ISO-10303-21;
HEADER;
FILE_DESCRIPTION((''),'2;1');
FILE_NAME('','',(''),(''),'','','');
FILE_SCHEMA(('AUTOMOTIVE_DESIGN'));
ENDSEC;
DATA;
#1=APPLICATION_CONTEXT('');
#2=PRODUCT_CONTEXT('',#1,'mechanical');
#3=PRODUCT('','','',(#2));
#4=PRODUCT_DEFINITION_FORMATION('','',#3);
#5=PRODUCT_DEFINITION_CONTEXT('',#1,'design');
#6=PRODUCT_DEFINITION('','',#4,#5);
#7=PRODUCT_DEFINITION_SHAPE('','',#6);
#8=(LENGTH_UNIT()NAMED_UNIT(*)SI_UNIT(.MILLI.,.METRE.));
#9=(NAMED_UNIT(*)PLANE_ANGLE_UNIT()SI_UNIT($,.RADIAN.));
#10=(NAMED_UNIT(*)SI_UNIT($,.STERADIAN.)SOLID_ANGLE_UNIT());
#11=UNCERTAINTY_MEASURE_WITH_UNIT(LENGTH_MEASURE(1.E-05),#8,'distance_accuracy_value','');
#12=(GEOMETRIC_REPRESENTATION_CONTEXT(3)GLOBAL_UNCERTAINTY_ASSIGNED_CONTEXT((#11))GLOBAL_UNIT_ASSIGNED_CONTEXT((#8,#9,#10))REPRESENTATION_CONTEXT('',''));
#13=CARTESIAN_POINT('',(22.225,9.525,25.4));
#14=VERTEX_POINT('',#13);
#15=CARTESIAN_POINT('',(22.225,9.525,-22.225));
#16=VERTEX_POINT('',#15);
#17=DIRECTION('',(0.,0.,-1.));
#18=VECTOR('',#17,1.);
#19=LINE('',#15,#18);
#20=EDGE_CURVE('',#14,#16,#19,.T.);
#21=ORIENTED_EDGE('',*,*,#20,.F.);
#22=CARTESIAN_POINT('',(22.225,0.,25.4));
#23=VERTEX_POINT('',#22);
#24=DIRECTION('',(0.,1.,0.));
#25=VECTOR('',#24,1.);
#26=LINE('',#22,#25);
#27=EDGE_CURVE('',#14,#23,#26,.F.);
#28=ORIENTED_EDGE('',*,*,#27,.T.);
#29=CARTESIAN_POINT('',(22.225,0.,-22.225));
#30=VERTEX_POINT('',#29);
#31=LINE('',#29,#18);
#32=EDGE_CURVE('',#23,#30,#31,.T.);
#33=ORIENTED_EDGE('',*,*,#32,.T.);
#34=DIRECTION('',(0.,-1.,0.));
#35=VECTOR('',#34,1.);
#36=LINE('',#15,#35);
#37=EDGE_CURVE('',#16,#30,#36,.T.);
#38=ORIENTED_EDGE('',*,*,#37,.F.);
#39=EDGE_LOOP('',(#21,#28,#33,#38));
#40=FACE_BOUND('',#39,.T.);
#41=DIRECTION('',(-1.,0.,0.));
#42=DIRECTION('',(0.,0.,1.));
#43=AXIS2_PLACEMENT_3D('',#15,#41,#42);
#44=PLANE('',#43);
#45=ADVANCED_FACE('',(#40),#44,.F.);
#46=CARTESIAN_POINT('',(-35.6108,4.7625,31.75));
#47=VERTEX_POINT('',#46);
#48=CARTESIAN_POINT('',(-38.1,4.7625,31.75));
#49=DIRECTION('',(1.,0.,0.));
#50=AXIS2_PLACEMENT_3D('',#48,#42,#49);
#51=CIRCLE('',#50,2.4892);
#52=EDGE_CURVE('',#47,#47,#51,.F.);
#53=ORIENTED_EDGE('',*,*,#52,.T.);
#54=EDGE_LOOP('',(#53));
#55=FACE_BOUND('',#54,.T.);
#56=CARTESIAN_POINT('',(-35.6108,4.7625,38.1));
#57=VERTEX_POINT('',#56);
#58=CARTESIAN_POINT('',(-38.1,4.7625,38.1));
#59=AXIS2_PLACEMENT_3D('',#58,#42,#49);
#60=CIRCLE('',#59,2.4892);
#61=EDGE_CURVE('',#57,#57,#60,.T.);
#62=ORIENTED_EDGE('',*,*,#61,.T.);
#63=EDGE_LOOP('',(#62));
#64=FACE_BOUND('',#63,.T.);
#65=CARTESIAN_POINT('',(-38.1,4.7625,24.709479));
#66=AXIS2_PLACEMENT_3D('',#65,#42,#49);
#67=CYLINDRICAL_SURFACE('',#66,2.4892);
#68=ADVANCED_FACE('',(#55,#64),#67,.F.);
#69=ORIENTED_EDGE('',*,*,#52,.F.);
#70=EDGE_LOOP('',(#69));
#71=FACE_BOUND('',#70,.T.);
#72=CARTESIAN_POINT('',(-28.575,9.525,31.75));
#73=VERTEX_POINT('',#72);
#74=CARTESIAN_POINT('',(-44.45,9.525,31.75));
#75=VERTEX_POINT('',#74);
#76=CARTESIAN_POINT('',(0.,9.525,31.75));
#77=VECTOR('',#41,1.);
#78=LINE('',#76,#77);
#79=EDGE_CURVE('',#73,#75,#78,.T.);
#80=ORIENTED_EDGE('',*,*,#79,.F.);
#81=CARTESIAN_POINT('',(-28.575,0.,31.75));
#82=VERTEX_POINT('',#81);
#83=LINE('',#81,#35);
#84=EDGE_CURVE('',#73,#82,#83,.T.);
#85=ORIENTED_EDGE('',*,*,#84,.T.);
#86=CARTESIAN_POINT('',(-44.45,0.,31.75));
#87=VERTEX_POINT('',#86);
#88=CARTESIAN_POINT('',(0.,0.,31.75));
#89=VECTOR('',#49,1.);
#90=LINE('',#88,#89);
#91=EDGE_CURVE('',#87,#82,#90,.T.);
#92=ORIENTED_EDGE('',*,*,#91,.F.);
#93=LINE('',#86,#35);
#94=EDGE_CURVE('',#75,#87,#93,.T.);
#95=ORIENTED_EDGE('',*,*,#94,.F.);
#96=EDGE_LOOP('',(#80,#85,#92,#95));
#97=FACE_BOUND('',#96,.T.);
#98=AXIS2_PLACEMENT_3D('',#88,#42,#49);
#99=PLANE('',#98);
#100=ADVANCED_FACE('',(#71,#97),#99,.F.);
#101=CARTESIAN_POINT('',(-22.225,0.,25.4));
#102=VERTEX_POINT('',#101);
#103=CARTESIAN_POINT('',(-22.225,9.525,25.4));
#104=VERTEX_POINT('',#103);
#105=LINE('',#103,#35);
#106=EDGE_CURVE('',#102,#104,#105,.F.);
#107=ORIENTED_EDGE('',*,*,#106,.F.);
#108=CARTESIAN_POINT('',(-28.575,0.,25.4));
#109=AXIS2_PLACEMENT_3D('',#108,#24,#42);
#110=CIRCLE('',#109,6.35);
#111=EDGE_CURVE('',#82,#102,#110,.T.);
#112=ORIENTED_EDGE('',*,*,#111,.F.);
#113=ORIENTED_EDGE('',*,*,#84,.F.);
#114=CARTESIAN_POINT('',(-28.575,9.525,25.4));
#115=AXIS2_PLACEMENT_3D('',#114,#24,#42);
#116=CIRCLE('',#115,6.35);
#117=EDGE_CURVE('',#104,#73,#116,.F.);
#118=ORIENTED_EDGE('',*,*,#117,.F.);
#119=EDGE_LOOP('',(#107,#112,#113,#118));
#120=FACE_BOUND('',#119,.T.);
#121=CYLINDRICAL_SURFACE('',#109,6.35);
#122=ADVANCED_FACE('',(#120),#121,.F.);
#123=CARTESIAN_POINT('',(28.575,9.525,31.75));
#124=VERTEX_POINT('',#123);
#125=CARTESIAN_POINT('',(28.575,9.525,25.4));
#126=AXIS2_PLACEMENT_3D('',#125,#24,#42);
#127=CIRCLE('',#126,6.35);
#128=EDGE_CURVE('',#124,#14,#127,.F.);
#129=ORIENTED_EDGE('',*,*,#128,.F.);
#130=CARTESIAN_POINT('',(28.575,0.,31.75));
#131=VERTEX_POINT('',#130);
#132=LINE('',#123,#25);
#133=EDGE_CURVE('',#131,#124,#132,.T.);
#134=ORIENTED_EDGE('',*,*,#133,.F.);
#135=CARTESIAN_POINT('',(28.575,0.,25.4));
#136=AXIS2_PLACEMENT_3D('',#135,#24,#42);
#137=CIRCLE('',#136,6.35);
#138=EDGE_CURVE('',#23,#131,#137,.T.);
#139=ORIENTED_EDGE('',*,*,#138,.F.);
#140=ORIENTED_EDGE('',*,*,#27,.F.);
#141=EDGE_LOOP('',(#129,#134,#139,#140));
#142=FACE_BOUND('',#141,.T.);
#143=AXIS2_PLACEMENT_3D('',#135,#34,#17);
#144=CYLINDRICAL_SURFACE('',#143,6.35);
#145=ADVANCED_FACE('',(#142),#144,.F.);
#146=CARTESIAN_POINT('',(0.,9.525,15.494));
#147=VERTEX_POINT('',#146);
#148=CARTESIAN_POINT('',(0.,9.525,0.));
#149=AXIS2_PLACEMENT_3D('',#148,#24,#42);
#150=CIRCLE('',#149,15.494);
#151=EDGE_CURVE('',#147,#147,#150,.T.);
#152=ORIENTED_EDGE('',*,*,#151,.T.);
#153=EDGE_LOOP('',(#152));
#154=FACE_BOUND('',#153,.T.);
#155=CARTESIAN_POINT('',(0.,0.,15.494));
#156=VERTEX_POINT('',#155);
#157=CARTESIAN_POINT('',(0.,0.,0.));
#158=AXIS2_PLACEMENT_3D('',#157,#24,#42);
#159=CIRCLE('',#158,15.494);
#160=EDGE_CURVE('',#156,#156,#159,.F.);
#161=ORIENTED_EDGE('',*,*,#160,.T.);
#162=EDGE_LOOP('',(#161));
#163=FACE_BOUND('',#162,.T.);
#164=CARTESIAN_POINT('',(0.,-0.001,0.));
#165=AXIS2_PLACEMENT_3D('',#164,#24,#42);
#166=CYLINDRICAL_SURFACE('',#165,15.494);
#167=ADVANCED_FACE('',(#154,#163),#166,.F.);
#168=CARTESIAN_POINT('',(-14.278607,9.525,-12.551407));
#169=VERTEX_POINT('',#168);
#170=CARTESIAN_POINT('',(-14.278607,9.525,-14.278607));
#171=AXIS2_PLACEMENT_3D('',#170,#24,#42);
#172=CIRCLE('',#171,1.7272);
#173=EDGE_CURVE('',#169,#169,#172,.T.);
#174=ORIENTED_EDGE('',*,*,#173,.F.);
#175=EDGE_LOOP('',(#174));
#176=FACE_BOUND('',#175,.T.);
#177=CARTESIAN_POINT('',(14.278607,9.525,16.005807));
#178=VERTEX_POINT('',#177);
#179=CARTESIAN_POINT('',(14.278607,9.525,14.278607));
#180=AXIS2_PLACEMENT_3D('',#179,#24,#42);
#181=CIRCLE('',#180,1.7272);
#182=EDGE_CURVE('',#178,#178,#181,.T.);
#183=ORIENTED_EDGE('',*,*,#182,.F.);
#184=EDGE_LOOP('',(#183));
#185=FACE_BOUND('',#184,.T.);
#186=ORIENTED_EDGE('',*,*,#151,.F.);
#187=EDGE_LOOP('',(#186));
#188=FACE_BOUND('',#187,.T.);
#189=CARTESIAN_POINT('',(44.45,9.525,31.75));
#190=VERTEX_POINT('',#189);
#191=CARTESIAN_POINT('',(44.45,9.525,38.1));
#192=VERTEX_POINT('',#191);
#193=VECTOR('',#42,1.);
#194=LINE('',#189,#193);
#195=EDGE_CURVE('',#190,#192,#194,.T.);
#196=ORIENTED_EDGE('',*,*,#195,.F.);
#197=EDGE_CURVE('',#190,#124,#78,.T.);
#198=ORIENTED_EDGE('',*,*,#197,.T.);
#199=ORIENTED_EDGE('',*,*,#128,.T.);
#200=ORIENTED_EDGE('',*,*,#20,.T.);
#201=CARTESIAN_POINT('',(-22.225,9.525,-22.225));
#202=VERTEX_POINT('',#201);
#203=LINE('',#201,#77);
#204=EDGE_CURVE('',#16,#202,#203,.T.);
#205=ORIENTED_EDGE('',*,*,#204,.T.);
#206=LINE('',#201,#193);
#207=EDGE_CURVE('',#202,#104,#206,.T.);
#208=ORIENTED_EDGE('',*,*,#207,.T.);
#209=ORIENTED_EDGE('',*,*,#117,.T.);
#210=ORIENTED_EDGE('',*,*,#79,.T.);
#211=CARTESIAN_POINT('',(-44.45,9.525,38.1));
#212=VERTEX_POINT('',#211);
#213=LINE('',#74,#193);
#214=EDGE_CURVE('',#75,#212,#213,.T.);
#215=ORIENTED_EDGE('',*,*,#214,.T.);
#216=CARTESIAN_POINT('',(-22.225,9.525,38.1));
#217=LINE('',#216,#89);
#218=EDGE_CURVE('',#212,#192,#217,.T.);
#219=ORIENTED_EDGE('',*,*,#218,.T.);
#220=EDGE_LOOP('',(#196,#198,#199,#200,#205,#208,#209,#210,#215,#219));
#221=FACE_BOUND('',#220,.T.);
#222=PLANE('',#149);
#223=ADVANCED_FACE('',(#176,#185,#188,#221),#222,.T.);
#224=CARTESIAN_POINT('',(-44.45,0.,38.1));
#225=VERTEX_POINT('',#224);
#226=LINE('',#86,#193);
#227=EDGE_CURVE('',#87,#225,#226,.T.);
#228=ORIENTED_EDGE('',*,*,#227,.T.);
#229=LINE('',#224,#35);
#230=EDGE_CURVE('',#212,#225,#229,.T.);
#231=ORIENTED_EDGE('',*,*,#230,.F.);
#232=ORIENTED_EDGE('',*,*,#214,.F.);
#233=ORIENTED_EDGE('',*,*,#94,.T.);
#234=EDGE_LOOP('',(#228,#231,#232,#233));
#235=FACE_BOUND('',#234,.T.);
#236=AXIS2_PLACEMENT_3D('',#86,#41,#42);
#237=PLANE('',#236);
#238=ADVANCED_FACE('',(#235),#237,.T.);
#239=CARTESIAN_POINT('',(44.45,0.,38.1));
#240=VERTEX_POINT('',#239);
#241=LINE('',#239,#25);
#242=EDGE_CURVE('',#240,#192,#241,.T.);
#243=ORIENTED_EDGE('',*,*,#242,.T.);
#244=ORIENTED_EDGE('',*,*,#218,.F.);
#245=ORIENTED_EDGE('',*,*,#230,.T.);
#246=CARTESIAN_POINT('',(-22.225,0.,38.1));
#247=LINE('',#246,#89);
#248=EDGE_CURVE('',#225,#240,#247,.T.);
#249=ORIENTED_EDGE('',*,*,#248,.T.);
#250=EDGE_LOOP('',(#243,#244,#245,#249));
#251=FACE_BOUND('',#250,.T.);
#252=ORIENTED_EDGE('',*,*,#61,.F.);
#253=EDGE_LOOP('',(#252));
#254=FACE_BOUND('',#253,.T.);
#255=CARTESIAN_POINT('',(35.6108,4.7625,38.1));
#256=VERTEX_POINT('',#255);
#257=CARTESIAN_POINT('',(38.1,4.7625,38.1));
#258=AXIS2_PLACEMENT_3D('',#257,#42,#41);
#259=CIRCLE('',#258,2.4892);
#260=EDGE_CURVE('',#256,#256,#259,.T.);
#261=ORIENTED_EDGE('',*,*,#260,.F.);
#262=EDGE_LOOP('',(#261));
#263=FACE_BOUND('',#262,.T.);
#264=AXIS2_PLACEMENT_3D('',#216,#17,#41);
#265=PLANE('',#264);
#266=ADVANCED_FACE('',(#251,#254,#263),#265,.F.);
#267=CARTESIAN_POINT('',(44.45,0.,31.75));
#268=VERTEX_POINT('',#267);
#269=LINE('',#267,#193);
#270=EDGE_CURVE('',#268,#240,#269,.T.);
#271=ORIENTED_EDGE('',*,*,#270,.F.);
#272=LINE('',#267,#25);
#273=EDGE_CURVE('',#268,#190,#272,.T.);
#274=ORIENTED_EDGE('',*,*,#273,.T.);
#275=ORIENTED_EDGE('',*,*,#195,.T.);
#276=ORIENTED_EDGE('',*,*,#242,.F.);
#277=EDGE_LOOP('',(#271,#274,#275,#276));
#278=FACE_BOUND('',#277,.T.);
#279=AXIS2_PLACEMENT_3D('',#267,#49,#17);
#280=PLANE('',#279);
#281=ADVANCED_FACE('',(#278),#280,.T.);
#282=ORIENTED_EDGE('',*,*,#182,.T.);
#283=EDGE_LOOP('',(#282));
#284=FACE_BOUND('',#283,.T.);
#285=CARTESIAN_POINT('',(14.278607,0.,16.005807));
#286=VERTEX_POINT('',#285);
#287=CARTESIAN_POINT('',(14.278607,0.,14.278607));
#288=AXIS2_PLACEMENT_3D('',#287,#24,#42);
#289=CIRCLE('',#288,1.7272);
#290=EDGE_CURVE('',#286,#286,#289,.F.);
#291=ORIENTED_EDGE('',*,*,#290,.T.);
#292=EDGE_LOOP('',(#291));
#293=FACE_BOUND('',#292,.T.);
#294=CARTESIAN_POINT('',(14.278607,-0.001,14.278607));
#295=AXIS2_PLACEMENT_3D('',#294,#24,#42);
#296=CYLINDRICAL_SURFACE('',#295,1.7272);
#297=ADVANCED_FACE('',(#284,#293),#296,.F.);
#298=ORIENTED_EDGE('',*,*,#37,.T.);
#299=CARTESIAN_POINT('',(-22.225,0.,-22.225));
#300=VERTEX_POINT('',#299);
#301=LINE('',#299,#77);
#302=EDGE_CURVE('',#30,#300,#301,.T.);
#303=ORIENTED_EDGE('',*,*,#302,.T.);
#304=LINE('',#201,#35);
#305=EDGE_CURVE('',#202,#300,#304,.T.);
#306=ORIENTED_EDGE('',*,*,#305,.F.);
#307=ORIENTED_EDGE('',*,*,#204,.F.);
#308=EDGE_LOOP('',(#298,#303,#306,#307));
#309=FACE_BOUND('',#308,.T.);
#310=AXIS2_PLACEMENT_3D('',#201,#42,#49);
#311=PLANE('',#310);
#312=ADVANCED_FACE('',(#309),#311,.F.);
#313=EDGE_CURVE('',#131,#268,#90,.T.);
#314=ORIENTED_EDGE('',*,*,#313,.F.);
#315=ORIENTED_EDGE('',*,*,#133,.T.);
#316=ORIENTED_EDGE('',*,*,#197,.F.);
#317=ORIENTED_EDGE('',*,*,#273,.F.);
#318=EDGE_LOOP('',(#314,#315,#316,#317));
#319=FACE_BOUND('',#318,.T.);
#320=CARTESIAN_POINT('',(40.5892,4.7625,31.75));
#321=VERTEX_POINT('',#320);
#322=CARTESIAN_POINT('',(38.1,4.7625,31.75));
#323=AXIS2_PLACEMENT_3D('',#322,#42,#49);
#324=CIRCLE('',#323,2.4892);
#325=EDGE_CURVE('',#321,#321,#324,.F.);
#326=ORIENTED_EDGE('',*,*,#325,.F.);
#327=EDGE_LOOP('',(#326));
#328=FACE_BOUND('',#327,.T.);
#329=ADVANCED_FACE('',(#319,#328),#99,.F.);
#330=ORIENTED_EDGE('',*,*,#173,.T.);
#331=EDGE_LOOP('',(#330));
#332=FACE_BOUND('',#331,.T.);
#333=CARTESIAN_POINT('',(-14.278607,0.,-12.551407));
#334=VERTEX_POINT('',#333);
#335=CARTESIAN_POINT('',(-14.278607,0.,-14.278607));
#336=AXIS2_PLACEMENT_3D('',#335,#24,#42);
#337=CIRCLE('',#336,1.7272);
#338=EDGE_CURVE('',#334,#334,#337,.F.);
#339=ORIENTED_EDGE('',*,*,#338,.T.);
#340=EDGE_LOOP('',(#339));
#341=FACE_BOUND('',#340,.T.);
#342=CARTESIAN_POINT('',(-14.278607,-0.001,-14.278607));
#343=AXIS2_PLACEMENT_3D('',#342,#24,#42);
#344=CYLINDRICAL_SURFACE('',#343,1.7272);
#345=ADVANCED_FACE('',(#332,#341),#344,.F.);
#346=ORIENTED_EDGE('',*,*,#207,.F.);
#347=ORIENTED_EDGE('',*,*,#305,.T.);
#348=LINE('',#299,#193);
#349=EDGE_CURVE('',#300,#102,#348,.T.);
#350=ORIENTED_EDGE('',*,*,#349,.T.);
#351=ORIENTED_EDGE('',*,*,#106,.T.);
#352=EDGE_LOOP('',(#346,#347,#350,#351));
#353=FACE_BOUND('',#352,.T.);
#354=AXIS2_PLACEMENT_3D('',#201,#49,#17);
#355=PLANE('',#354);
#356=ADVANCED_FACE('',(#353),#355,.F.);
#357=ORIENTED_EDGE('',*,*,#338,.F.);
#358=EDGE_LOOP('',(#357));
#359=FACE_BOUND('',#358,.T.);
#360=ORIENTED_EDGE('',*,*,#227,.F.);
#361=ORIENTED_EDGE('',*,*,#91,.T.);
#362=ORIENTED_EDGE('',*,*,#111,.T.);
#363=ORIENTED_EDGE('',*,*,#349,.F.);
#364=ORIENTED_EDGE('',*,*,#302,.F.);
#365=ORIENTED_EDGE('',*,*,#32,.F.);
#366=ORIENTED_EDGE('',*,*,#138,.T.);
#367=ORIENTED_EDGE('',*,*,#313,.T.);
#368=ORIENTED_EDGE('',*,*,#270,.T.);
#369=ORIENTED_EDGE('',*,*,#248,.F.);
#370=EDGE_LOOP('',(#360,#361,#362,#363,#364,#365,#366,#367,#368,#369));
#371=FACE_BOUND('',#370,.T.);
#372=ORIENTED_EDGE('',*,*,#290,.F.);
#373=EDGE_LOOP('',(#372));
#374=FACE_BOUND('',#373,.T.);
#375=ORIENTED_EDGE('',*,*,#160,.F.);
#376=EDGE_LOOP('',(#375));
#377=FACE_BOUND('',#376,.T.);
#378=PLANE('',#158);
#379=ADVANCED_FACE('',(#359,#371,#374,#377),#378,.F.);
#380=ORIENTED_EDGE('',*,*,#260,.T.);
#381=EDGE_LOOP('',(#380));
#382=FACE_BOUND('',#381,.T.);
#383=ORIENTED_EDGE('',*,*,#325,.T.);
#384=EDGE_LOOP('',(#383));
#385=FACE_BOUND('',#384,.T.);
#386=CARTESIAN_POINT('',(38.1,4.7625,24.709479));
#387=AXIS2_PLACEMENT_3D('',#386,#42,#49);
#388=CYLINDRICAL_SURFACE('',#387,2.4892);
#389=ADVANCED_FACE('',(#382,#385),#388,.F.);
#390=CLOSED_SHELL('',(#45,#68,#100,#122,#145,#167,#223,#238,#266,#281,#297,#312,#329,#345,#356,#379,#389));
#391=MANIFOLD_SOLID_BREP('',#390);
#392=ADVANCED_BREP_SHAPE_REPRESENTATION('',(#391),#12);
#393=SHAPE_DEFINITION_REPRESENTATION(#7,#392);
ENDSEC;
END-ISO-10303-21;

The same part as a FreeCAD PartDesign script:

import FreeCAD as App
import Part
import Sketcher

V = App.Vector
Q = App.Units.Quantity


def edges_at(feature, points):
    """Names of the edges that pass closest to the given points."""
    edges = feature.Shape.Edges
    near = lambda p: min(range(len(edges)), key=lambda i: edges[i].distToShape(Part.Vertex(*p))[0])
    return sorted({f"Edge{near(p) + 1}" for p in points})

doc = App.newDocument("Part")
body = doc.addObject("PartDesign::Body", "Body")

sketch1 = body.newObject("Sketcher::SketchObject", "Sketch")
sketch1.AttachmentSupport = (doc.getObject("XZ_Plane"), [""])
sketch1.MapMode = "FlatFace"
sketch1.addGeometry([
    Part.LineSegment(V(-22, -22, 0), V(-22, 38, 0)),
    Part.LineSegment(V(-22, 38, 0), V(22, 38, 0)),
    Part.LineSegment(V(22, 38, 0), V(22, -22, 0)),
    Part.LineSegment(V(22, -22, 0), V(-22, -22, 0)),
], False)
sketch1.addConstraint([
    Sketcher.Constraint("Coincident", 0, 2, 1, 1),
    Sketcher.Constraint("Coincident", 1, 2, 2, 1),
    Sketcher.Constraint("Coincident", 2, 2, 3, 1),
    Sketcher.Constraint("Coincident", 3, 2, 0, 1),
    Sketcher.Constraint("Vertical", 0),
    Sketcher.Constraint("Horizontal", 1),
    Sketcher.Constraint("Vertical", 2),
    Sketcher.Constraint("Horizontal", 3),
    Sketcher.Constraint("DistanceX", 1, 1, 1, 2, Q("1.75 in")),
    Sketcher.Constraint("DistanceY", -1, 1, 0, 2, Q("1.5 in")),
    Sketcher.Constraint("DistanceY", 0, 1, 0, 2, Q("2.375 in")),
    Sketcher.Constraint("DistanceX", 0, 2, -1, 1, Q("0.875 in")),
])
pad1 = body.newObject("PartDesign::Pad", "Pad")
pad1.Profile = sketch1
pad1.Length = Q("0.375 in")
pad1.Reversed = True

sketch2 = body.newObject("Sketcher::SketchObject", "Sketch001")
sketch2.AttachmentSupport = (doc.getObject("XY_Plane"), [""])
sketch2.MapMode = "FlatFace"
sketch2.AttachmentOffset = App.Placement(V(0, 0, 1.5 * 25.4), App.Rotation())
sketch2.addGeometry([
    Part.LineSegment(V(-44, 10, 0), V(-44, 0, 0)),
    Part.LineSegment(V(-44, 0, 0), V(-22, 0, 0)),
    Part.LineSegment(V(-22, 0, 0), V(-22, 10, 0)),
    Part.LineSegment(V(-22, 10, 0), V(-44, 10, 0)),
    Part.LineSegment(V(22, 10, 0), V(22, 0, 0)),
    Part.LineSegment(V(22, 0, 0), V(44, 0, 0)),
    Part.LineSegment(V(44, 0, 0), V(44, 10, 0)),
    Part.LineSegment(V(44, 10, 0), V(22, 10, 0)),
], False)
sketch2.addConstraint([
    Sketcher.Constraint("Coincident", 0, 2, 1, 1),
    Sketcher.Constraint("Coincident", 1, 2, 2, 1),
    Sketcher.Constraint("Coincident", 2, 2, 3, 1),
    Sketcher.Constraint("Coincident", 3, 2, 0, 1),
    Sketcher.Constraint("Coincident", 4, 2, 5, 1),
    Sketcher.Constraint("Coincident", 5, 2, 6, 1),
    Sketcher.Constraint("Coincident", 6, 2, 7, 1),
    Sketcher.Constraint("Coincident", 7, 2, 4, 1),
    Sketcher.Constraint("Vertical", 0),
    Sketcher.Constraint("Horizontal", 1),
    Sketcher.Constraint("Vertical", 2),
    Sketcher.Constraint("Horizontal", 3),
    Sketcher.Constraint("Vertical", 4),
    Sketcher.Constraint("Horizontal", 5),
    Sketcher.Constraint("Vertical", 6),
    Sketcher.Constraint("Horizontal", 7),
    Sketcher.Constraint("Symmetric", 1, 2, 4, 2, -1, 1),
    Sketcher.Constraint("Symmetric", 0, 2, 5, 2, -2),
    Sketcher.Constraint("Horizontal", 3, 2, 6, 2),
    Sketcher.Constraint("DistanceX", 0, 2, 5, 2, Q("3.5 in")),
    Sketcher.Constraint("DistanceX", 1, 1, 1, 2, Q("0.875 in")),
    Sketcher.Constraint("DistanceY", 0, 2, 0, 1, Q("0.375 in")),
])
pad2 = body.newObject("PartDesign::Pad", "Pad001")
pad2.Profile = sketch2
pad2.Length = Q("0.25 in")
pad2.Reversed = True
doc.recompute()

fillet = body.newObject("PartDesign::Fillet", "Fillet")
fillet.Base = (pad2, edges_at(pad2, [(-22.225, 4.763, 31.75), (22.225, 4.763, 31.75)]))
fillet.Radius = Q("0.25 in")

sketch3 = body.newObject("Sketcher::SketchObject", "Sketch002")
sketch3.AttachmentSupport = (doc.getObject("XY_Plane"), [""])
sketch3.MapMode = "FlatFace"
sketch3.AttachmentOffset = App.Placement(V(0, 0, 1.5 * 25.4), App.Rotation())
sketch3.addGeometry([
    Part.Circle(V(-38.1, 4.8, 0), V(0, 0, 1), 2.5),
    Part.Circle(V(38.1, 4.8, 0), V(0, 0, 1), 2.5),
], False)
sketch3.addConstraint([
    Sketcher.Constraint("Equal", 0, 1),
    Sketcher.Constraint("Symmetric", 0, 3, 1, 3, -2),
    Sketcher.Constraint("Diameter", 0, Q("0.196 in")),
    Sketcher.Constraint("DistanceX", 0, 3, 1, 3, Q("3 in")),
    Sketcher.Constraint("DistanceY", -1, 1, 0, 3, Q("0.1875 in")),
])
pocket1 = body.newObject("PartDesign::Pocket", "Pocket")
pocket1.Profile = sketch3
pocket1.Length = Q("0.25 in")

sketch4 = body.newObject("Sketcher::SketchObject", "Sketch003")
sketch4.AttachmentSupport = (doc.getObject("XZ_Plane"), [""])
sketch4.MapMode = "FlatFace"
sketch4.AttachmentOffset = App.Placement(V(0, 0, -0.375 * 25.4), App.Rotation())
sketch4.addGeometry(Part.Circle(V(0, 0, 0), V(0, 0, 1), 15), False)
sketch4.addConstraint([
    Sketcher.Constraint("Coincident", 0, 3, -1, 1),
    Sketcher.Constraint("Diameter", 0, Q("1.22 in")),
])
pocket2 = body.newObject("PartDesign::Pocket", "Pocket001")
pocket2.Profile = sketch4
pocket2.Type = "UpToFirst"
pocket2.Reversed = True

sketch5 = body.newObject("Sketcher::SketchObject", "Sketch004")
sketch5.AttachmentSupport = (doc.getObject("XZ_Plane"), [""])
sketch5.MapMode = "FlatFace"
sketch5.AttachmentOffset = App.Placement(V(0, 0, -0.375 * 25.4), App.Rotation())
sketch5.addGeometry(Part.Circle(V(-14.3, -14.3, 0), V(0, 0, 1), 1.7), False)
sketch5.addConstraint([
    Sketcher.Constraint("Diameter", 0, Q("0.136 in")),
    Sketcher.Constraint("DistanceX", 0, 3, -1, 1, Q("14.278607 mm")),
    Sketcher.Constraint("DistanceY", 0, 3, -1, 1, Q("14.278607 mm")),
])
pocket3 = body.newObject("PartDesign::Pocket", "Pocket002")
pocket3.Profile = sketch5
pocket3.Type = "UpToFirst"
pocket3.Reversed = True

sketch6 = body.newObject("Sketcher::SketchObject", "Sketch005")
sketch6.AttachmentSupport = (doc.getObject("XZ_Plane"), [""])
sketch6.MapMode = "FlatFace"
sketch6.AttachmentOffset = App.Placement(V(0, 0, -0.375 * 25.4), App.Rotation())
sketch6.addGeometry(Part.Circle(V(14.3, 14.3, 0), V(0, 0, 1), 1.7), False)
sketch6.addConstraint([
    Sketcher.Constraint("Diameter", 0, Q("0.136 in")),
    Sketcher.Constraint("DistanceX", -1, 1, 0, 3, Q("14.278607 mm")),
    Sketcher.Constraint("DistanceY", -1, 1, 0, 3, Q("14.278607 mm")),
])
pocket4 = body.newObject("PartDesign::Pocket", "Pocket003")
pocket4.Profile = sketch6
pocket4.Type = "UpToFirst"
pocket4.Reversed = True

sketch7 = body.newObject("Sketcher::SketchObject", "Sketch006")
sketch7.AttachmentSupport = (doc.getObject("XZ_Plane"), [""])
sketch7.MapMode = "FlatFace"
sketch7.AttachmentOffset = App.Placement(V(0, 0, -0.375 * 25.4), App.Rotation())
sketch7.addGeometry([
    Part.Circle(V(-14.3, -14.3, 0), V(0, 0, 1), 1.7),
    Part.Circle(V(14.3, 14.3, 0), V(0, 0, 1), 1.7),
], False)
sketch7.addConstraint([
    Sketcher.Constraint("Equal", 0, 1),
    Sketcher.Constraint("Symmetric", 0, 3, 1, 3, -1, 1),
    Sketcher.Constraint("Diameter", 0, Q("0.136 in")),
    Sketcher.Constraint("DistanceX", 0, 3, -1, 1, Q("14.278607 mm")),
    Sketcher.Constraint("DistanceY", 0, 3, -1, 1, Q("14.278607 mm")),
])
doc.recompute()
hole = body.newObject("PartDesign::Hole", "Hole")
hole.Profile = sketch7
hole.ThreadType = "None"
hole.Diameter = Q("0.136 in")
hole.DepthType = "ThroughAll"
hole.Reversed = True

doc.recompute()
